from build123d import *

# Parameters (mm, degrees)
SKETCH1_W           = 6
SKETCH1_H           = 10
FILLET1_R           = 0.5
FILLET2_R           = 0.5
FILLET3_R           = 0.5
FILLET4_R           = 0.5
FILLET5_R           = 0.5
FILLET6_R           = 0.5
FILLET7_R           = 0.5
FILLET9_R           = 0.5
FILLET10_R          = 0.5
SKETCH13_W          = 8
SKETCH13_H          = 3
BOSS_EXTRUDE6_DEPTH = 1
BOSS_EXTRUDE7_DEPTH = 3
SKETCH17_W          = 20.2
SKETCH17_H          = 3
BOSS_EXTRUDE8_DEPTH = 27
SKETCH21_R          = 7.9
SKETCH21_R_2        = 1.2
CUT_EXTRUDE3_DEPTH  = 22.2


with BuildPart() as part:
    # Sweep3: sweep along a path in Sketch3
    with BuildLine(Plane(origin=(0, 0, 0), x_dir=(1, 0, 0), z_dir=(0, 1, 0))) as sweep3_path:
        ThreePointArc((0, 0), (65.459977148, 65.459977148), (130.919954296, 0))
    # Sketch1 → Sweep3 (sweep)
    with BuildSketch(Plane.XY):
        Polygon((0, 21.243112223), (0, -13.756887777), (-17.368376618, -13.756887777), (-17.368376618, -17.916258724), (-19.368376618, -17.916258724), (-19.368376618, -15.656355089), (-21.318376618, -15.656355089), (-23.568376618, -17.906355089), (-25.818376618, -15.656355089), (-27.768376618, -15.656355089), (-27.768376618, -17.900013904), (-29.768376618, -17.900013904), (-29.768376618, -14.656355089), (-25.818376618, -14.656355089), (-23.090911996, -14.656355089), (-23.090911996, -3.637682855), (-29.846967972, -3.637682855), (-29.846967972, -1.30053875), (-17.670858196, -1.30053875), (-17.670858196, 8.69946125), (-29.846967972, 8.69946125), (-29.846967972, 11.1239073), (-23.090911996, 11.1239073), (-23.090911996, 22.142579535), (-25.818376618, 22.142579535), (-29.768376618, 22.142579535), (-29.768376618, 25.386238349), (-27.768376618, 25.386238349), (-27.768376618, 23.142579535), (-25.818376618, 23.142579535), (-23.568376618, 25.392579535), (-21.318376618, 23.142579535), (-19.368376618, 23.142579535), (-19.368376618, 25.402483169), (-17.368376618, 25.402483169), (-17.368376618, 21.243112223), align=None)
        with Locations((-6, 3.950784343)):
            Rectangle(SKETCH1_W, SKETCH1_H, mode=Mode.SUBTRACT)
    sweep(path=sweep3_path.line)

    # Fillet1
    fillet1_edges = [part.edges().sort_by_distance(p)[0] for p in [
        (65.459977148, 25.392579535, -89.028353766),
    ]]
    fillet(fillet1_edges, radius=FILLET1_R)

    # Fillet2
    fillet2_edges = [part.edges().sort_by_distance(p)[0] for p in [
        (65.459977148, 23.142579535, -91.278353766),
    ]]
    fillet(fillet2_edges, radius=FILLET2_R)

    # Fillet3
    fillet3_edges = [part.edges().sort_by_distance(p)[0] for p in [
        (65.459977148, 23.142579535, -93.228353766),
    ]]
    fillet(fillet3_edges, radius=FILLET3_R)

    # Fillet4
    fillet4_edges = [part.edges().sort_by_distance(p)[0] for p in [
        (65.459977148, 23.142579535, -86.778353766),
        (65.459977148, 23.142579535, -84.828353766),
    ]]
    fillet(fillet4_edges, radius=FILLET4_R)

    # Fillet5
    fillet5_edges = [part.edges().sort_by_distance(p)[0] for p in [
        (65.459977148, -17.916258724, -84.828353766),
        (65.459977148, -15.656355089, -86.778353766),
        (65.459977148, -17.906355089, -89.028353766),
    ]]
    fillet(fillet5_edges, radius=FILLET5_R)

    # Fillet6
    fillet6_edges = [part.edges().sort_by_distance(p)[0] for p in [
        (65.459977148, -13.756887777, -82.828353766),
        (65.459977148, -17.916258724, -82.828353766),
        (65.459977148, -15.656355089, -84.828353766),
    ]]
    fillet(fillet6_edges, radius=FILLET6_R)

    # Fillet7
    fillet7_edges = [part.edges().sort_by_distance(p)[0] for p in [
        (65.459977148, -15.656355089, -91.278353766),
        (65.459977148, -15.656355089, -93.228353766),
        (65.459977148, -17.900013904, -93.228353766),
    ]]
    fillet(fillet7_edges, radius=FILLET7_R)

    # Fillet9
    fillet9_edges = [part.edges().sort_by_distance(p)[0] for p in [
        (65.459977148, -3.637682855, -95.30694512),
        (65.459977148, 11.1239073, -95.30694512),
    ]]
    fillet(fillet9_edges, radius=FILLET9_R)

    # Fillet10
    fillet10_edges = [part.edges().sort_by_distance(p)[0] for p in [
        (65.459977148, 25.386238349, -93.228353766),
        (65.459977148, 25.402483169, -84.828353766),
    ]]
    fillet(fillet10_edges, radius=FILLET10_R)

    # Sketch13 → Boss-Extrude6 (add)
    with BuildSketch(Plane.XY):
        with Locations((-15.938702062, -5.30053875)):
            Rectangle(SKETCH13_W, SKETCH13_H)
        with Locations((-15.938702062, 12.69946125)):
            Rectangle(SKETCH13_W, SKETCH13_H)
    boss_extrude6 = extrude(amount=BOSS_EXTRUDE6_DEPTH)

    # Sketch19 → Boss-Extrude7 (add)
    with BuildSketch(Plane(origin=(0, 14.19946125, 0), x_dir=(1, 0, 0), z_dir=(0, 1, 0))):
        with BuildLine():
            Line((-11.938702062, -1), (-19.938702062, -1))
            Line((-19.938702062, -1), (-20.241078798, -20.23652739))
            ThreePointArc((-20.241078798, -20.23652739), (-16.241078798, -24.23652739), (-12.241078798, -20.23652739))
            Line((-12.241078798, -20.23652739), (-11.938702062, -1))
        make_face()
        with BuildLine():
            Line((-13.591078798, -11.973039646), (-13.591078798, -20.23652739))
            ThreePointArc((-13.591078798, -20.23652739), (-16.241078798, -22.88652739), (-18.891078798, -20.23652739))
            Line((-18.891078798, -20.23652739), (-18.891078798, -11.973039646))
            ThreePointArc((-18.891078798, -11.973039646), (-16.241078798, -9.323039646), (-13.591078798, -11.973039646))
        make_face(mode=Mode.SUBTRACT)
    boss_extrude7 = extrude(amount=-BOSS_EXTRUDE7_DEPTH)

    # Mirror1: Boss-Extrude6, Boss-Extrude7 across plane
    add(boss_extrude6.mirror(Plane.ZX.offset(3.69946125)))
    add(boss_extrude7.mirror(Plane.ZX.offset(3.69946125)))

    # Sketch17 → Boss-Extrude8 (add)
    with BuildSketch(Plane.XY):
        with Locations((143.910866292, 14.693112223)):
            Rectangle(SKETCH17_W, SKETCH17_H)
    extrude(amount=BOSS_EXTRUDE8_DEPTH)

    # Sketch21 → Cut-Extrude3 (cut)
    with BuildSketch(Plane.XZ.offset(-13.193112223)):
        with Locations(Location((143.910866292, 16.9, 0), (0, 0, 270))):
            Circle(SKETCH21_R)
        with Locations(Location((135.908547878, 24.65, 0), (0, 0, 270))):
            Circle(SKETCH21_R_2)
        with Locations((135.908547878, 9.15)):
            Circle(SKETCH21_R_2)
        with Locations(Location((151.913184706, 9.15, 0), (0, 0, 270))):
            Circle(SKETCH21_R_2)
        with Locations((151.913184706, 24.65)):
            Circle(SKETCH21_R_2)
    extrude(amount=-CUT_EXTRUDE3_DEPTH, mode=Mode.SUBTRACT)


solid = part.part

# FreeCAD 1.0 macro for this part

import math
import FreeCAD as App
import Part
import Sketcher

V = App.Vector
Q = App.Units.Quantity


def edges_at(feature, points):
    """Names of the edges that pass closest to the given points."""
    edges = feature.Shape.Edges
    near = lambda p: min(range(len(edges)), key=lambda i: edges[i].distToShape(Part.Vertex(*p))[0])
    return sorted({f"Edge{near(p) + 1}" for p in points})

doc = App.newDocument("Part")
body = doc.addObject("PartDesign::Body", "Body")

# Sketch on XY plane
sketch1 = body.newObject("Sketcher::SketchObject", "Sketch")
sketch1.AttachmentSupport = (doc.getObject("XY_Plane"), [""])
sketch1.MapMode = "FlatFace"
sketch1.addGeometry([
    Part.LineSegment(V(0, -13.756888, 0), V(0, 21.243112, 0)),  # 0
    Part.LineSegment(V(0, 21.243112, 0), V(-17.368377, 21.243112, 0)),  # 1
    Part.LineSegment(V(-17.368377, 21.243112, 0), V(-17.368377, 25.402483, 0)),  # 2
    Part.LineSegment(V(-17.368377, 25.402483, 0), V(-19.368377, 25.402483, 0)),  # 3
    Part.LineSegment(V(-19.368377, 25.402483, 0), V(-19.368377, 23.14258, 0)),  # 4
    Part.LineSegment(V(-19.368377, 23.14258, 0), V(-21.318377, 23.14258, 0)),  # 5
    Part.LineSegment(V(-21.318377, 23.14258, 0), V(-23.568377, 25.39258, 0)),  # 6
    Part.LineSegment(V(-23.568377, 25.39258, 0), V(-25.818377, 23.14258, 0)),  # 7
    Part.LineSegment(V(-25.818377, 23.14258, 0), V(-27.768377, 23.14258, 0)),  # 8
    Part.LineSegment(V(-27.768377, 23.14258, 0), V(-27.768377, 25.386238, 0)),  # 9
    Part.LineSegment(V(-27.768377, 25.386238, 0), V(-29.768377, 25.386238, 0)),  # 10
    Part.LineSegment(V(-29.768377, 25.386238, 0), V(-29.768377, 22.14258, 0)),  # 11
    Part.LineSegment(V(-29.768377, 22.14258, 0), V(-23.090912, 22.14258, 0)),  # 12
    Part.LineSegment(V(-23.090912, 22.14258, 0), V(-23.090912, 11.123907, 0)),  # 13
    Part.LineSegment(V(-23.090912, 11.123907, 0), V(-29.846968, 11.123907, 0)),  # 14
    Part.LineSegment(V(-29.846968, 11.123907, 0), V(-29.846968, 8.699461, 0)),  # 15
    Part.LineSegment(V(-29.846968, 8.699461, 0), V(-17.670858, 8.699461, 0)),  # 16
    Part.LineSegment(V(-17.670858, 8.699461, 0), V(-17.670858, -1.300539, 0)),  # 17
    Part.LineSegment(V(-17.670858, -1.300539, 0), V(-29.846968, -1.300539, 0)),  # 18
    Part.LineSegment(V(-29.846968, -1.300539, 0), V(-29.846968, -3.637683, 0)),  # 19
    Part.LineSegment(V(-29.846968, -3.637683, 0), V(-23.090912, -3.637683, 0)),  # 20
    Part.LineSegment(V(-23.090912, -3.637683, 0), V(-23.090912, -14.656355, 0)),  # 21
    Part.LineSegment(V(-23.090912, -14.656355, 0), V(-29.768377, -14.656355, 0)),  # 22
    Part.LineSegment(V(-29.768377, -14.656355, 0), V(-29.768377, -17.900014, 0)),  # 23
    Part.LineSegment(V(-29.768377, -17.900014, 0), V(-27.768377, -17.900014, 0)),  # 24
    Part.LineSegment(V(-27.768377, -17.900014, 0), V(-27.768377, -15.656355, 0)),  # 25
    Part.LineSegment(V(-27.768377, -15.656355, 0), V(-25.818377, -15.656355, 0)),  # 26
    Part.LineSegment(V(-25.818377, -15.656355, 0), V(-23.568377, -17.906355, 0)),  # 27
    Part.LineSegment(V(-23.568377, -17.906355, 0), V(-21.318377, -15.656355, 0)),  # 28
    Part.LineSegment(V(-21.318377, -15.656355, 0), V(-19.368377, -15.656355, 0)),  # 29
    Part.LineSegment(V(-19.368377, -15.656355, 0), V(-19.368377, -17.916259, 0)),  # 30
    Part.LineSegment(V(-19.368377, -17.916259, 0), V(-17.368377, -17.916259, 0)),  # 31
    Part.LineSegment(V(-17.368377, -17.916259, 0), V(-17.368377, -13.756888, 0)),  # 32
    Part.LineSegment(V(-17.368377, -13.756888, 0), V(0, -13.756888, 0)),  # 33
    Part.LineSegment(V(-9, -1.049216, 0), V(-9, 8.950784, 0)),  # 34
    Part.LineSegment(V(-9, 8.950784, 0), V(-3, 8.950784, 0)),  # 35
    Part.LineSegment(V(-3, 8.950784, 0), V(-3, -1.049216, 0)),  # 36
    Part.LineSegment(V(-3, -1.049216, 0), V(-9, -1.049216, 0)),  # 37
], False)
sketch1.addConstraint([
    Sketcher.Constraint("Coincident", 0, 2, 1, 1),
    Sketcher.Constraint("Coincident", 1, 2, 2, 1),
    Sketcher.Constraint("Coincident", 2, 2, 3, 1),
    Sketcher.Constraint("Coincident", 3, 2, 4, 1),
    Sketcher.Constraint("Coincident", 4, 2, 5, 1),
    Sketcher.Constraint("Coincident", 5, 2, 6, 1),
    Sketcher.Constraint("Coincident", 6, 2, 7, 1),
    Sketcher.Constraint("Coincident", 7, 2, 8, 1),
    Sketcher.Constraint("Coincident", 8, 2, 9, 1),
    Sketcher.Constraint("Coincident", 9, 2, 10, 1),
    Sketcher.Constraint("Coincident", 10, 2, 11, 1),
    Sketcher.Constraint("Coincident", 11, 2, 12, 1),
    Sketcher.Constraint("Coincident", 12, 2, 13, 1),
    Sketcher.Constraint("Coincident", 13, 2, 14, 1),
    Sketcher.Constraint("Coincident", 14, 2, 15, 1),
    Sketcher.Constraint("Coincident", 15, 2, 16, 1),
    Sketcher.Constraint("Coincident", 16, 2, 17, 1),
    Sketcher.Constraint("Coincident", 17, 2, 18, 1),
    Sketcher.Constraint("Coincident", 18, 2, 19, 1),
    Sketcher.Constraint("Coincident", 19, 2, 20, 1),
    Sketcher.Constraint("Coincident", 20, 2, 21, 1),
    Sketcher.Constraint("Coincident", 21, 2, 22, 1),
    Sketcher.Constraint("Coincident", 22, 2, 23, 1),
    Sketcher.Constraint("Coincident", 23, 2, 24, 1),
    Sketcher.Constraint("Coincident", 24, 2, 25, 1),
    Sketcher.Constraint("Coincident", 25, 2, 26, 1),
    Sketcher.Constraint("Coincident", 26, 2, 27, 1),
    Sketcher.Constraint("Coincident", 27, 2, 28, 1),
    Sketcher.Constraint("Coincident", 28, 2, 29, 1),
    Sketcher.Constraint("Coincident", 29, 2, 30, 1),
    Sketcher.Constraint("Coincident", 30, 2, 31, 1),
    Sketcher.Constraint("Coincident", 31, 2, 32, 1),
    Sketcher.Constraint("Coincident", 32, 2, 33, 1),
    Sketcher.Constraint("Coincident", 33, 2, 0, 1),
    Sketcher.Constraint("Coincident", 34, 2, 35, 1),
    Sketcher.Constraint("Coincident", 35, 2, 36, 1),
    Sketcher.Constraint("Coincident", 36, 2, 37, 1),
    Sketcher.Constraint("Coincident", 37, 2, 34, 1),
    Sketcher.Constraint("Vertical", 0),
    Sketcher.Constraint("Horizontal", 1),
    Sketcher.Constraint("Vertical", 2),
    Sketcher.Constraint("Horizontal", 3),
    Sketcher.Constraint("Vertical", 4),
    Sketcher.Constraint("Horizontal", 5),
    Sketcher.Constraint("Horizontal", 8),
    Sketcher.Constraint("Vertical", 9),
    Sketcher.Constraint("Horizontal", 10),
    Sketcher.Constraint("Vertical", 11),
    Sketcher.Constraint("Horizontal", 12),
    Sketcher.Constraint("Vertical", 13),
    Sketcher.Constraint("Horizontal", 14),
    Sketcher.Constraint("Vertical", 15),
    Sketcher.Constraint("Horizontal", 16),
    Sketcher.Constraint("Vertical", 17),
    Sketcher.Constraint("Horizontal", 18),
    Sketcher.Constraint("Vertical", 19),
    Sketcher.Constraint("Horizontal", 20),
    Sketcher.Constraint("Vertical", 21),
    Sketcher.Constraint("Horizontal", 22),
    Sketcher.Constraint("Vertical", 23),
    Sketcher.Constraint("Horizontal", 24),
    Sketcher.Constraint("Vertical", 25),
    Sketcher.Constraint("Horizontal", 26),
    Sketcher.Constraint("Horizontal", 29),
    Sketcher.Constraint("Vertical", 30),
    Sketcher.Constraint("Horizontal", 31),
    Sketcher.Constraint("Vertical", 32),
    Sketcher.Constraint("Horizontal", 33),
    Sketcher.Constraint("Vertical", 34),
    Sketcher.Constraint("Horizontal", 35),
    Sketcher.Constraint("Vertical", 36),
    Sketcher.Constraint("Horizontal", 37),
    Sketcher.Constraint("PointOnObject", 0, 2, -2),
    Sketcher.Constraint("Perpendicular", 6, 7),
    Sketcher.Constraint("Perpendicular", 7, 27),
    Sketcher.Constraint("Perpendicular", 27, 28),
    Sketcher.Constraint("Horizontal", 5, 2, 7, 2),
    Sketcher.Constraint("Horizontal", 26, 2, 28, 2),
    Sketcher.Constraint("Vertical", 15, 2, 18, 2),
    Sketcher.Constraint("Vertical", 13, 2, 20, 2),
    Sketcher.Constraint("Vertical", 11, 2, 22, 2),
    Sketcher.Constraint("Vertical", 9, 2, 24, 2),
    Sketcher.Constraint("Vertical", 7, 2, 26, 2),
    Sketcher.Constraint("Vertical", 6, 2, 27, 2),
    Sketcher.Constraint("Vertical", 5, 2, 28, 2),
    Sketcher.Constraint("Vertical", 4, 2, 29, 2),
    Sketcher.Constraint("Vertical", 2, 2, 31, 2),
    Sketcher.Constraint("Equal", 5, 8),
    Sketcher.Constraint("Equal", 3, 10),
    Sketcher.Constraint("Equal", 13, 21),
    Sketcher.Constraint("Equal", 11, 23),
    Sketcher.Constraint("Equal", 9, 25),
    Sketcher.Constraint("Equal", 4, 30),
    Sketcher.Constraint("Equal", 2, 32),
    Sketcher.Constraint("Equal", 17, 34),
    Sketcher.Constraint("DistanceX", 3, 2, 3, 1, Q("2 mm")),
    Sketcher.Constraint("DistanceX", 35, 1, 35, 2, Q("6 mm")),
    Sketcher.Constraint("DistanceY", 0, 1, 0, 2, Q("35 mm")),
    Sketcher.Constraint("DistanceY", 17, 2, 17, 1, Q("10 mm")),
    Sketcher.Constraint("DistanceX", 34, 2, -1, 1, Q("9 mm")),
    Sketcher.Constraint("DistanceY", 11, 2, 8, 2, Q("1 mm")),
    Sketcher.Constraint("DistanceX", 5, 2, 5, 1, Q("1.95 mm")),
    Sketcher.Constraint("DistanceX", 6, 2, 3, 2, Q("4.2 mm")),
    Sketcher.Constraint("DistanceX", 16, 1, 16, 2, Q("12.17611 mm")),
    Sketcher.Constraint("DistanceY", 2, 1, 2, 2, Q("4.159371 mm")),
    Sketcher.Constraint("DistanceY", 9, 1, 9, 2, Q("2.243659 mm")),
    Sketcher.Constraint("DistanceX", 1, 2, 1, 1, Q("17.368377 mm")),
    Sketcher.Constraint("DistanceX", 12, 1, 12, 2, Q("6.677465 mm")),
    Sketcher.Constraint("DistanceX", 14, 2, 14, 1, Q("6.756056 mm")),
    Sketcher.Constraint("DistanceY", 4, 2, 4, 1, Q("2.259904 mm")),
    Sketcher.Constraint("DistanceY", 13, 2, 13, 1, Q("11.018672 mm")),
    Sketcher.Constraint("DistanceY", 15, 2, 15, 1, Q("2.424446 mm")),
    Sketcher.Constraint("DistanceY", -1, 1, 4, 2, Q("23.14258 mm")),
    Sketcher.Constraint("DistanceY", -1, 1, 34, 2, Q("8.950784 mm")),
])

# Sketch on XZ plane
sketch2 = body.newObject("Sketcher::SketchObject", "Sketch001")
sketch2.AttachmentSupport = (doc.getObject("XZ_Plane"), [""])
sketch2.MapMode = "FlatFace"
sketch2.addGeometry(Part.ArcOfCircle(Part.Circle(V(65.459977, 0, 0), V(0, 0, 1), 65.459977), math.radians(180), math.radians(360)), False)
sketch2.addConstraint([
    Sketcher.Constraint("Coincident", 0, 1, -1, 1),
    Sketcher.Constraint("PointOnObject", 0, 3, -1),
    Sketcher.Constraint("PointOnObject", 0, 2, -1),
    Sketcher.Constraint("Radius", 0, Q("65.459977 mm")),
])
doc.recompute()

additivepipe = body.newObject("PartDesign::AdditivePipe", "AdditivePipe")
additivepipe.Profile = sketch1
additivepipe.Spine = (sketch2, ["Edge1"])
doc.recompute()

fillet = body.newObject("PartDesign::Fillet", "Fillet")
fillet.Base = (additivepipe, edges_at(additivepipe, [(65.46, 25.393, -89.028)]))
fillet.Radius = 0.5
doc.recompute()

fillet2 = body.newObject("PartDesign::Fillet", "Fillet001")
fillet2.Base = (fillet, edges_at(fillet, [(65.46, 23.143, -91.278)]))
fillet2.Radius = 0.5
doc.recompute()

fillet3 = body.newObject("PartDesign::Fillet", "Fillet002")
fillet3.Base = (fillet2, edges_at(fillet2, [(65.46, 23.143, -93.228)]))
fillet3.Radius = 0.5
doc.recompute()

fillet4 = body.newObject("PartDesign::Fillet", "Fillet003")
fillet4.Base = (fillet3, edges_at(fillet3, [(65.46, 23.143, -86.778), (65.46, 23.143, -84.828)]))
fillet4.Radius = 0.5
doc.recompute()

fillet5 = body.newObject("PartDesign::Fillet", "Fillet004")
fillet5.Base = (fillet4, edges_at(fillet4, [(65.46, -17.916, -84.828), (65.46, -15.656, -86.778), (65.46, -17.906, -89.028)]))
fillet5.Radius = 0.5
doc.recompute()

fillet6 = body.newObject("PartDesign::Fillet", "Fillet005")
fillet6.Base = (fillet5, edges_at(fillet5, [(65.46, -13.757, -82.828), (65.46, -17.916, -82.828), (65.46, -15.656, -84.828)]))
fillet6.Radius = 0.5
doc.recompute()

fillet7 = body.newObject("PartDesign::Fillet", "Fillet006")
fillet7.Base = (fillet6, edges_at(fillet6, [(65.46, -15.656, -91.278), (65.46, -15.656, -93.228), (65.46, -17.9, -93.228)]))
fillet7.Radius = 0.5
doc.recompute()

fillet8 = body.newObject("PartDesign::Fillet", "Fillet007")
fillet8.Base = (fillet7, edges_at(fillet7, [(65.46, -3.638, -95.307), (65.46, 11.124, -95.307)]))
fillet8.Radius = 0.5
doc.recompute()

fillet9 = body.newObject("PartDesign::Fillet", "Fillet008")
fillet9.Base = (fillet8, edges_at(fillet8, [(65.46, 25.386, -93.228), (65.46, 25.402, -84.828)]))
fillet9.Radius = 0.5

# Sketch on XY plane
sketch3 = body.newObject("Sketcher::SketchObject", "Sketch002")
sketch3.AttachmentSupport = (doc.getObject("XY_Plane"), [""])
sketch3.MapMode = "FlatFace"
sketch3.addGeometry([
    Part.LineSegment(V(-19.938702, -3.800539, 0), V(-19.938702, -6.800539, 0)),  # 0
    Part.LineSegment(V(-19.938702, -6.800539, 0), V(-11.938702, -6.800539, 0)),  # 1
    Part.LineSegment(V(-11.938702, -6.800539, 0), V(-11.938702, -3.800539, 0)),  # 2
    Part.LineSegment(V(-11.938702, -3.800539, 0), V(-19.938702, -3.800539, 0)),  # 3
    Part.LineSegment(V(-19.938702, 14.199461, 0), V(-19.938702, 11.199461, 0)),  # 4
    Part.LineSegment(V(-19.938702, 11.199461, 0), V(-11.938702, 11.199461, 0)),  # 5
    Part.LineSegment(V(-11.938702, 11.199461, 0), V(-11.938702, 14.199461, 0)),  # 6
    Part.LineSegment(V(-11.938702, 14.199461, 0), V(-19.938702, 14.199461, 0)),  # 7
], False)
sketch3.addConstraint([
    Sketcher.Constraint("Coincident", 0, 2, 1, 1),
    Sketcher.Constraint("Coincident", 1, 2, 2, 1),
    Sketcher.Constraint("Coincident", 2, 2, 3, 1),
    Sketcher.Constraint("Coincident", 3, 2, 0, 1),
    Sketcher.Constraint("Coincident", 4, 2, 5, 1),
    Sketcher.Constraint("Coincident", 5, 2, 6, 1),
    Sketcher.Constraint("Coincident", 6, 2, 7, 1),
    Sketcher.Constraint("Coincident", 7, 2, 4, 1),
    Sketcher.Constraint("Vertical", 0),
    Sketcher.Constraint("Horizontal", 1),
    Sketcher.Constraint("Vertical", 2),
    Sketcher.Constraint("Horizontal", 3),
    Sketcher.Constraint("Vertical", 4),
    Sketcher.Constraint("Horizontal", 5),
    Sketcher.Constraint("Vertical", 6),
    Sketcher.Constraint("Horizontal", 7),
    Sketcher.Constraint("Vertical", 3, 2, 4, 2),
    Sketcher.Constraint("Vertical", 2, 2, 5, 2),
    Sketcher.Constraint("Equal", 2, 4),
    Sketcher.Constraint("DistanceX", 1, 1, 1, 2, Q("8 mm")),
    Sketcher.Constraint("DistanceY", 0, 2, 0, 1, Q("3 mm")),
    Sketcher.Constraint("DistanceY", 3, 2, 4, 2, Q("15 mm")),
    Sketcher.Constraint("DistanceY", 0, 2, -1, 1, Q("6.800539 mm")),
    Sketcher.Constraint("DistanceX", 0, 2, -1, 1, Q("19.938702 mm")),
])
pad1 = body.newObject("PartDesign::Pad", "Pad")
pad1.Profile = sketch3
pad1.Length = 1

# Sketch on XZ plane
sketch4 = body.newObject("Sketcher::SketchObject", "Sketch003")
sketch4.AttachmentSupport = (doc.getObject("XZ_Plane"), [""])
sketch4.MapMode = "FlatFace"
sketch4.AttachmentOffset = App.Placement(V(0, 0, -14.199461), App.Rotation())
sketch4.addGeometry([
    Part.LineSegment(V(-11.938702, 1, 0), V(-19.938702, 1, 0)),  # 0
    Part.LineSegment(V(-19.938702, 1, 0), V(-20.241079, 20.236527, 0)),  # 1
    Part.ArcOfCircle(Part.Circle(V(-16.241079, 20.236527, 0), V(0, 0, 1), 4), math.radians(0), math.radians(180)),  # 2
    Part.LineSegment(V(-12.241079, 20.236527, 0), V(-11.938702, 1, 0)),  # 3
    Part.ArcOfCircle(Part.Circle(V(-16.241079, 11.97304, 0), V(0, 0, 1), 2.65), math.radians(180), math.radians(360)),  # 4
    Part.LineSegment(V(-13.591079, 11.97304, 0), V(-13.591079, 20.236527, 0)),  # 5
    Part.ArcOfCircle(Part.Circle(V(-16.241079, 20.236527, 0), V(0, 0, 1), 2.65), math.radians(0), math.radians(180)),  # 6
    Part.LineSegment(V(-18.891079, 20.236527, 0), V(-18.891079, 11.97304, 0)),  # 7
], False)
sketch4.addConstraint([
    Sketcher.Constraint("Coincident", 0, 2, 1, 1),
    Sketcher.Constraint("Coincident", 1, 2, 2, 2),
    Sketcher.Constraint("Coincident", 2, 1, 3, 1),
    Sketcher.Constraint("Coincident", 3, 2, 0, 1),
    Sketcher.Constraint("Coincident", 4, 2, 5, 1),
    Sketcher.Constraint("Coincident", 5, 2, 6, 1),
    Sketcher.Constraint("Coincident", 6, 2, 7, 1),
    Sketcher.Constraint("Coincident", 7, 2, 4, 1),
    Sketcher.Constraint("Horizontal", 0),
    Sketcher.Constraint("Vertical", 5),
    Sketcher.Constraint("Vertical", 7),
    Sketcher.Constraint("Coincident", 6, 3, 2, 3),
    Sketcher.Constraint("Radius", 2, Q("4 mm")),
    Sketcher.Constraint("DistanceX", 0, 2, 0, 1, Q("8 mm")),
    Sketcher.Constraint("Radius", 4, Q("2.65 mm")),
    Sketcher.Constraint("DistanceY", -1, 1, 0, 2, Q("1 mm")),
    Sketcher.Constraint("DistanceY", 5, 1, 5, 2, Q("8.263488 mm")),
    Sketcher.Constraint("DistanceY", 7, 2, 7, 1, Q("8.263488 mm")),
    Sketcher.Constraint("DistanceX", 2, 3, -1, 1, Q("16.241079 mm")),
    Sketcher.Constraint("DistanceY", -1, 1, 4, 3, Q("11.97304 mm")),
    Sketcher.Constraint("DistanceY", -1, 1, 4, 2, Q("11.97304 mm")),
    Sketcher.Constraint("DistanceY", -1, 1, 7, 2, Q("11.97304 mm")),
    Sketcher.Constraint("Distance", 1, Q("19.238904 mm")),
    Sketcher.Constraint("Distance", 3, Q("19.238904 mm")),
    Sketcher.Constraint("DistanceY", -1, 1, 2, 3, Q("20.236527 mm")),
    Sketcher.Constraint("DistanceX", 0, 2, -1, 1, Q("19.938702 mm")),
])
pad2 = body.newObject("PartDesign::Pad", "Pad001")
pad2.Profile = sketch4
pad2.Length = 3
doc.recompute()

datumplane = body.newObject("PartDesign::Plane", "DatumPlane")
datumplane.AttachmentSupport = (doc.getObject("XZ_Plane"), [""])
datumplane.MapMode = "FlatFace"
datumplane.AttachmentOffset = App.Placement(V(0, 0, -3.699461), App.Rotation())
mirrored = body.newObject("PartDesign::Mirrored", "Mirrored")
mirrored.Originals = [pad1, pad2]
mirrored.MirrorPlane = (datumplane, [""])
body.Tip = mirrored

# Sketch on XY plane
sketch5 = body.newObject("Sketcher::SketchObject", "Sketch004")
sketch5.AttachmentSupport = (doc.getObject("XY_Plane"), [""])
sketch5.MapMode = "FlatFace"
sketch5.addGeometry([
    Part.LineSegment(V(133.810866, 16.193112, 0), V(133.810866, 13.193112, 0)),
    Part.LineSegment(V(133.810866, 13.193112, 0), V(154.010866, 13.193112, 0)),
    Part.LineSegment(V(154.010866, 13.193112, 0), V(154.010866, 16.193112, 0)),
    Part.LineSegment(V(154.010866, 16.193112, 0), V(133.810866, 16.193112, 0)),
], False)
sketch5.addConstraint([
    Sketcher.Constraint("Coincident", 0, 2, 1, 1),
    Sketcher.Constraint("Coincident", 1, 2, 2, 1),
    Sketcher.Constraint("Coincident", 2, 2, 3, 1),
    Sketcher.Constraint("Coincident", 3, 2, 0, 1),
    Sketcher.Constraint("Vertical", 0),
    Sketcher.Constraint("Horizontal", 1),
    Sketcher.Constraint("Vertical", 2),
    Sketcher.Constraint("Horizontal", 3),
    Sketcher.Constraint("DistanceY", 0, 2, 0, 1, Q("3 mm")),
    Sketcher.Constraint("DistanceX", 1, 1, 1, 2, Q("20.2 mm")),
    Sketcher.Constraint("DistanceX", -1, 1, 0, 2, Q("133.810866 mm")),
    Sketcher.Constraint("DistanceY", -1, 1, 0, 2, Q("13.193112 mm")),
])
pad3 = body.newObject("PartDesign::Pad", "Pad002")
pad3.Profile = sketch5
pad3.Length = 27

# Sketch on XZ plane
sketch6 = body.newObject("Sketcher::SketchObject", "Sketch005")
sketch6.AttachmentSupport = (doc.getObject("XZ_Plane"), [""])
sketch6.MapMode = "FlatFace"
sketch6.AttachmentOffset = App.Placement(V(0, 0, -13.193112), App.Rotation())
sketch6.addGeometry([
    Part.Circle(V(143.910866, 16.9, 0), V(0, 0, 1), 7.9),  # 0
    Part.Circle(V(135.908548, 24.65, 0), V(0, 0, 1), 1.2),  # 1
    Part.Circle(V(135.908548, 9.15, 0), V(0, 0, 1), 1.2),  # 2
    Part.Circle(V(151.913185, 9.15, 0), V(0, 0, 1), 1.2),  # 3
    Part.Circle(V(151.913185, 24.65, 0), V(0, 0, 1), 1.2),  # 4
], False)
sketch6.addConstraint([
    Sketcher.Constraint("Equal", 1, 2),
    Sketcher.Constraint("Equal", 2, 3),
    Sketcher.Constraint("Equal", 3, 4),
    Sketcher.Constraint("Horizontal", 2, 3, 3, 3),
    Sketcher.Constraint("Horizontal", 1, 3, 4, 3),
    Sketcher.Constraint("Vertical", 1, 3, 2, 3),
    Sketcher.Constraint("Vertical", 3, 3, 4, 3),
    Sketcher.Constraint("Diameter", 0, Q("15.8 mm")),
    Sketcher.Constraint("Diameter", 1, Q("2.4 mm")),
    Sketcher.Constraint("DistanceY", -1, 1, 0, 3, Q("16.9 mm")),
    Sketcher.Constraint("DistanceY", 2, 3, 1, 3, Q("15.5 mm")),
    Sketcher.Constraint("DistanceY", -1, 1, 1, 3, Q("24.65 mm")),
    Sketcher.Constraint("DistanceX", 1, 3, 0, 3, Q("8.002318 mm")),
    Sketcher.Constraint("DistanceX", 0, 3, 3, 3, Q("8.002318 mm")),
    Sketcher.Constraint("DistanceX", -1, 1, 0, 3, Q("143.910866 mm")),
])
pocket1 = body.newObject("PartDesign::Pocket", "Pocket")
pocket1.Profile = sketch6
pocket1.Length = 22.2

doc.recompute()
